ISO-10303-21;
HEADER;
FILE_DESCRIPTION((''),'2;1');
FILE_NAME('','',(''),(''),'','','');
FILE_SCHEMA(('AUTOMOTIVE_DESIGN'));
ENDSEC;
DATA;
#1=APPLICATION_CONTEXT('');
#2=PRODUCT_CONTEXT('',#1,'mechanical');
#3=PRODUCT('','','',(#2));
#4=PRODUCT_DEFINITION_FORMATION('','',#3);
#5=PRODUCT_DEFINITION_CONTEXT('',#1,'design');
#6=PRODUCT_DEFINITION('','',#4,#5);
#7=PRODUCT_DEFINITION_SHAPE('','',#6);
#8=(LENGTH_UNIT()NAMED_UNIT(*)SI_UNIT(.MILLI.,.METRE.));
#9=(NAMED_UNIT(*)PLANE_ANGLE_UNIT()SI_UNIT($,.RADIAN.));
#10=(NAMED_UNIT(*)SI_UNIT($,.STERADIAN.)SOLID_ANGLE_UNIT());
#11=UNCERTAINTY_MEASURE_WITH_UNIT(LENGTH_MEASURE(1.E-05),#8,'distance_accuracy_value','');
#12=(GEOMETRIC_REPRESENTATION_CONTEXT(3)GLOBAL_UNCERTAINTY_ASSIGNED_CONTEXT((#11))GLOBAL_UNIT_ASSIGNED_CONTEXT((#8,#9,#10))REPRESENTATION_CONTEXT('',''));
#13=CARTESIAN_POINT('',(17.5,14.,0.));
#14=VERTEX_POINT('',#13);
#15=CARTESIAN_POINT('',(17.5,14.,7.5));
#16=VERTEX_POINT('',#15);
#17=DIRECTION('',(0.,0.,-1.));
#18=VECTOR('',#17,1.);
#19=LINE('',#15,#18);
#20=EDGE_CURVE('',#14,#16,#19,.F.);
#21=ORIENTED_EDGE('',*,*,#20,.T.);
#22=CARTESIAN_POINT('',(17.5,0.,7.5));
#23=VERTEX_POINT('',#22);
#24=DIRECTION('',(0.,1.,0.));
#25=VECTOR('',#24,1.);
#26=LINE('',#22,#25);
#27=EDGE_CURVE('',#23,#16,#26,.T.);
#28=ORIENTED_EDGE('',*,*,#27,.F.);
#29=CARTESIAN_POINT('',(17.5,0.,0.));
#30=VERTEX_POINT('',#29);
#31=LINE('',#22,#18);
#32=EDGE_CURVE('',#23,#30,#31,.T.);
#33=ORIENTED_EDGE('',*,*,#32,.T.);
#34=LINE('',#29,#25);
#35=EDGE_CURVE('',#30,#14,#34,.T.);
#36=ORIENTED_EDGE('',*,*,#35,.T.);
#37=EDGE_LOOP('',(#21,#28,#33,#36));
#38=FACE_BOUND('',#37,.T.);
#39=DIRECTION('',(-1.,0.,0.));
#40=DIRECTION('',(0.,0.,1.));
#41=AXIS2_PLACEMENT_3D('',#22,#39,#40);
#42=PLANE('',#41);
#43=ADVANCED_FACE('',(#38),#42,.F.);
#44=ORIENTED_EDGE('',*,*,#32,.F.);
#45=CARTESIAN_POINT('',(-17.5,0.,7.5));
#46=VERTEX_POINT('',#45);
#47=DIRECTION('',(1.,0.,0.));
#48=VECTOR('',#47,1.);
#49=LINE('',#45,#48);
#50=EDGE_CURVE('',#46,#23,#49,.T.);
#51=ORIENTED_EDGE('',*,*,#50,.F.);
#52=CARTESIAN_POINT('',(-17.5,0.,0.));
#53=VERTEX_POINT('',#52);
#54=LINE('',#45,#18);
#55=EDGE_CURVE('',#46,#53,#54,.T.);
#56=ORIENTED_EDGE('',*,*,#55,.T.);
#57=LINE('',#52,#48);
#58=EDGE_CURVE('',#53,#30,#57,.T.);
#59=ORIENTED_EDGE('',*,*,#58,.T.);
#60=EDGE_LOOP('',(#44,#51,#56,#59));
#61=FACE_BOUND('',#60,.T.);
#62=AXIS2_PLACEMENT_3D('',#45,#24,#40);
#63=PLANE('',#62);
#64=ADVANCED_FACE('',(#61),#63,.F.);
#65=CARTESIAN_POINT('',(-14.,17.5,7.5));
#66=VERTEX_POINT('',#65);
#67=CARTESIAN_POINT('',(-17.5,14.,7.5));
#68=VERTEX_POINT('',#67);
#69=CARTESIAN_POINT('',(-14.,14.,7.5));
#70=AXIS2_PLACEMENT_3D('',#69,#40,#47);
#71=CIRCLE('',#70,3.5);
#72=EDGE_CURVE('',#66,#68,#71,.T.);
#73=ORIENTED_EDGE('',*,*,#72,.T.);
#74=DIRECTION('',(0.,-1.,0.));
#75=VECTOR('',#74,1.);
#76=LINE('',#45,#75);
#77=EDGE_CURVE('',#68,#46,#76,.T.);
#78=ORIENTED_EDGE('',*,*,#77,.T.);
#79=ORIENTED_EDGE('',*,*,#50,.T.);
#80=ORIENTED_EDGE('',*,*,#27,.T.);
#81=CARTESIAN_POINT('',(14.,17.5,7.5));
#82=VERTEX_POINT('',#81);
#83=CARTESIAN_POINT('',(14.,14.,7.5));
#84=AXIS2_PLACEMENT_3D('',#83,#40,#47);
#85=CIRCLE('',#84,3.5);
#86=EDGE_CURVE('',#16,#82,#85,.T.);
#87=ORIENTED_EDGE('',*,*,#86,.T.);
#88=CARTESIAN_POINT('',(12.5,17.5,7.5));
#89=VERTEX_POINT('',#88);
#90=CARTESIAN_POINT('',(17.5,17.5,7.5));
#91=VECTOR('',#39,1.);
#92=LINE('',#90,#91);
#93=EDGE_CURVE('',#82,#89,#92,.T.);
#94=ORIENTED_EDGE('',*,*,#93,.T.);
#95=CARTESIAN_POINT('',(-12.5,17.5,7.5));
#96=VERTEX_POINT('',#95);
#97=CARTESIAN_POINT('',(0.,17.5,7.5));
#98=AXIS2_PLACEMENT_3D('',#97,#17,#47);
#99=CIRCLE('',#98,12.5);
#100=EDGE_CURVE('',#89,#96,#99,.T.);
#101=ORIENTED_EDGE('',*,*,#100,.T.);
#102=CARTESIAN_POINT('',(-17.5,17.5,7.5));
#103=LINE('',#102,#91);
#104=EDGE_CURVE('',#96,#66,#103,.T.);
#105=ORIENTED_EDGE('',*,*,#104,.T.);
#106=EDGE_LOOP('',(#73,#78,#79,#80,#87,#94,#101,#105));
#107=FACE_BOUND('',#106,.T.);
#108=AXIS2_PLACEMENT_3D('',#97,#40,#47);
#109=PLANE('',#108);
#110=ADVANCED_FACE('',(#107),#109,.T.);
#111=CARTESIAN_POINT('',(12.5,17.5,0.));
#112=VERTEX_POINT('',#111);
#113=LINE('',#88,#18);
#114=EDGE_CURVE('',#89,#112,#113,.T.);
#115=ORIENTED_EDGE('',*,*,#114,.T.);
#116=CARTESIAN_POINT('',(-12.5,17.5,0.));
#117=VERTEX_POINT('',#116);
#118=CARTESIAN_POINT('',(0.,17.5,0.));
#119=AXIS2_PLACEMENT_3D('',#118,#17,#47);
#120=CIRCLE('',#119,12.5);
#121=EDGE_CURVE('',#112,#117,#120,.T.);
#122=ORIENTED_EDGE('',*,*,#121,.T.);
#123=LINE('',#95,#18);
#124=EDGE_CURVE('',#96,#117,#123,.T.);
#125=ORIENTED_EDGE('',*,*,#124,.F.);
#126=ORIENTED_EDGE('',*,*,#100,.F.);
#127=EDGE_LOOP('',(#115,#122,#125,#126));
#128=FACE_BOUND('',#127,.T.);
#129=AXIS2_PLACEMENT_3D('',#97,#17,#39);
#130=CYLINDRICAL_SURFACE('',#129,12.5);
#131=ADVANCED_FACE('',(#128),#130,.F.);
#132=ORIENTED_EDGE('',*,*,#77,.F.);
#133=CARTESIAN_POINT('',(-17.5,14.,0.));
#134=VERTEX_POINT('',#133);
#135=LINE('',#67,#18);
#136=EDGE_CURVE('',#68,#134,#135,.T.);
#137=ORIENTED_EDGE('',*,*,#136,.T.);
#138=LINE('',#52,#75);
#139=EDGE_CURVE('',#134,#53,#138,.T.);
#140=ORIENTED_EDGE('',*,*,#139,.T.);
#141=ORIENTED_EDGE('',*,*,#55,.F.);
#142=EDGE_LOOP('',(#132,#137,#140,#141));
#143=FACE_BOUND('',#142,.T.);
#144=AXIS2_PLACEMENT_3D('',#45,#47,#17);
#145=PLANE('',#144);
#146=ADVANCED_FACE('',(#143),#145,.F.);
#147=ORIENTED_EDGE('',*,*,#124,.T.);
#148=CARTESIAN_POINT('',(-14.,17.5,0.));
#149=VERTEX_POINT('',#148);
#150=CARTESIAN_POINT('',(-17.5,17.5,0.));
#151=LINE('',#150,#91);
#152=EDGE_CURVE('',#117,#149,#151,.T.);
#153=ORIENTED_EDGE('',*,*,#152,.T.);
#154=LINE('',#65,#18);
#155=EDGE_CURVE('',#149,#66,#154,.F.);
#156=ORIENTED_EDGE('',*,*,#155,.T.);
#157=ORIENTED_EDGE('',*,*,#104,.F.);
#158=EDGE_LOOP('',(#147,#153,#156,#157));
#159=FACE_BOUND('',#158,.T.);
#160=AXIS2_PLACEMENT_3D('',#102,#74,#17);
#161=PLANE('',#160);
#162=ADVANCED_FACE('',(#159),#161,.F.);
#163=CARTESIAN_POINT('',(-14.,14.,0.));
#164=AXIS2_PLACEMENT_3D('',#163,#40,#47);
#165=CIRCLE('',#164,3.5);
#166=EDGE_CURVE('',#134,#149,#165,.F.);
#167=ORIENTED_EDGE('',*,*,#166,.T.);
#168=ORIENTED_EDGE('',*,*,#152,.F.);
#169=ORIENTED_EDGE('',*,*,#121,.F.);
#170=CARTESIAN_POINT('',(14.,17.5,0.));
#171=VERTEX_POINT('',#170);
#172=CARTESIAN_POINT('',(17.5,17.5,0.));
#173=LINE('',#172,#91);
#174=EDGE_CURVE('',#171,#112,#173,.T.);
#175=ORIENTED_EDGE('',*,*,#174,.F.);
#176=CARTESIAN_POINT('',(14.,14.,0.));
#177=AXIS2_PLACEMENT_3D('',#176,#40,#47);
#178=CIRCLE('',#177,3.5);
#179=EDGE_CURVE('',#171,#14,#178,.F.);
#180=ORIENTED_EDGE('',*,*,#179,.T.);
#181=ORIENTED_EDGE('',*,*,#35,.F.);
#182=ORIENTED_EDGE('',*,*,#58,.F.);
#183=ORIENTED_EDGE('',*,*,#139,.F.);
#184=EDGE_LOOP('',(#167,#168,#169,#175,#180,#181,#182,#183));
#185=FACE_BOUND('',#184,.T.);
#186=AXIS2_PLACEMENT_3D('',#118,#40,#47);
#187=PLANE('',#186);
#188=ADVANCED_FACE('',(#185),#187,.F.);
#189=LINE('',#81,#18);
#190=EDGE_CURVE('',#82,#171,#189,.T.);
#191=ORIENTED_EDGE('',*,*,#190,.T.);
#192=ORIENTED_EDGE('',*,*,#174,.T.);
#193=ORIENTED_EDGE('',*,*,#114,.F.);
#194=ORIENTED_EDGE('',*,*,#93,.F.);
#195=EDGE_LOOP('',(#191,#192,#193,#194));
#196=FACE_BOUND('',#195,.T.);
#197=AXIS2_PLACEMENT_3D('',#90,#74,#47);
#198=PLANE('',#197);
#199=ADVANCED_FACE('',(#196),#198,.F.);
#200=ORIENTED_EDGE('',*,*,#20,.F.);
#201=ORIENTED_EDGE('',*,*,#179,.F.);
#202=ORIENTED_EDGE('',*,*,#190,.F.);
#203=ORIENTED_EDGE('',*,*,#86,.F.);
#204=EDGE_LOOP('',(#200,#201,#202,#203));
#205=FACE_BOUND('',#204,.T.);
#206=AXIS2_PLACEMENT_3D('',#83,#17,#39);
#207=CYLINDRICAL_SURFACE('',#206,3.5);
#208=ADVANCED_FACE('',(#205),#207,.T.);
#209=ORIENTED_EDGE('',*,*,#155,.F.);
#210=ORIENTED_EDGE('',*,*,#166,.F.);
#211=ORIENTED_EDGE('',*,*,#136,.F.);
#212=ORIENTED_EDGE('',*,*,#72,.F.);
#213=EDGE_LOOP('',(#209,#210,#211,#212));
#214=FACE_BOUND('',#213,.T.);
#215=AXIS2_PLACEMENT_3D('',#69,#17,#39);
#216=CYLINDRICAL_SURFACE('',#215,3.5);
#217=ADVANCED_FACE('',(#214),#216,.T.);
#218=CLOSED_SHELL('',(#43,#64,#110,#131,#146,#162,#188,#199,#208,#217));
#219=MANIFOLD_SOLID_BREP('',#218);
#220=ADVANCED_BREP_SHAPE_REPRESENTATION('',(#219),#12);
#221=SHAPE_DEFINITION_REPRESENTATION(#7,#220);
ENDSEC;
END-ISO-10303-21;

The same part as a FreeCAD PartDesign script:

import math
import FreeCAD as App
import Part
import Sketcher
from FreeCAD import Vector


def edges_at(feature, points):
    """Names of the edges that pass closest to the given points."""
    edges = feature.Shape.Edges
    near = lambda p: min(range(len(edges)), key=lambda i: edges[i].distToShape(Part.Vertex(*p))[0])
    return sorted({f"Edge{near(p) + 1}" for p in points})

doc = App.newDocument("Part")
body = doc.addObject("PartDesign::Body", "Body")

# Sketch on XY plane
sketch1 = body.newObject("Sketcher::SketchObject", "Sketch")
sketch1.AttachmentSupport = (doc.getObject("XY_Plane"), [""])
sketch1.MapMode = "FlatFace"
sketch1.addGeometry([
    Part.LineSegment(Vector(-18, 0, 0), Vector(18, 0, 0)),  # 0
    Part.LineSegment(Vector(18, 0, 0), Vector(18, 18, 0)),  # 1
    Part.LineSegment(Vector(18, 18, 0), Vector(12, 18, 0)),  # 2
    Part.ArcOfCircle(Part.Circle(Vector(0, 18, 0), Vector(0, 0, 1), 12), math.radians(180), math.radians(360)),  # 3
    Part.LineSegment(Vector(-12, 18, 0), Vector(-18, 18, 0)),  # 4
    Part.LineSegment(Vector(-18, 18, 0), Vector(-18, 0, 0)),  # 5
], False)
sketch1.addConstraint([
    Sketcher.Constraint("Coincident", 0, 2, 1, 1),
    Sketcher.Constraint("Coincident", 1, 2, 2, 1),
    Sketcher.Constraint("Coincident", 2, 2, 3, 2),
    Sketcher.Constraint("Coincident", 3, 1, 4, 1),
    Sketcher.Constraint("Coincident", 4, 2, 5, 1),
    Sketcher.Constraint("Coincident", 5, 2, 0, 1),
    Sketcher.Constraint("Horizontal", 0),
    Sketcher.Constraint("Vertical", 1),
    Sketcher.Constraint("Horizontal", 2),
    Sketcher.Constraint("Horizontal", 4),
    Sketcher.Constraint("Vertical", 5),
    Sketcher.Constraint("Symmetric", 0, 2, 5, 2, -1, 1),
    Sketcher.Constraint("Symmetric", 2, 2, 3, 1, -2),
    Sketcher.Constraint("Horizontal", 3, 3, 1, 2),
    Sketcher.Constraint("Radius", 3, 12.5),
    Sketcher.Constraint("DistanceX", 0, 1, 0, 2, 35.0),
    Sketcher.Constraint("DistanceY", 1, 1, 1, 2, 17.5),
])
pad1 = body.newObject("PartDesign::Pad", "Pad")
pad1.Profile = sketch1
pad1.Length = 7.5
doc.recompute()

fillet = body.newObject("PartDesign::Fillet", "Fillet")
fillet.Base = (pad1, edges_at(pad1, [(-17.5, 17.5, 3.75), (17.5, 17.5, 3.75)]))
fillet.Radius = 3.5

doc.recompute()
